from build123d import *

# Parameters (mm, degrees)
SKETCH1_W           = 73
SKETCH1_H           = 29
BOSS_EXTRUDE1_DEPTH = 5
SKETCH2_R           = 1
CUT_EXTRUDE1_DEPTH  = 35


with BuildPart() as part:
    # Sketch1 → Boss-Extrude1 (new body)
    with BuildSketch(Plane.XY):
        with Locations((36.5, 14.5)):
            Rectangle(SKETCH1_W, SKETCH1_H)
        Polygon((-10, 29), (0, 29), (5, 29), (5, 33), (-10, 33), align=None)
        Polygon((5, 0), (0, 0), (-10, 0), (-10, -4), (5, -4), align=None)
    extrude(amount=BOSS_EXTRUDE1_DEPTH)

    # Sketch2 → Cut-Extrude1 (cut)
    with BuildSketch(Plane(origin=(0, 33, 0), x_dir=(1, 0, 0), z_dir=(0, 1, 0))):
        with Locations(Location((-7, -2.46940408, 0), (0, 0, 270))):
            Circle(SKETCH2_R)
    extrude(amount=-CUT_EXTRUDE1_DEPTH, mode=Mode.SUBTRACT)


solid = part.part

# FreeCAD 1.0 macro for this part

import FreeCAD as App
import Part
import Sketcher

V = App.Vector

doc = App.newDocument("Part")
params = doc.addObject("Spreadsheet::Sheet", "Params")
for row, (alias, value) in enumerate([
    ("sketch1_width", "10 mm"),
    ("sketch1_width2", "15 mm"),
    ("sketch1_width3", "68 mm"),
    ("sketch1_height", "29 mm"),
    ("sketch1_height2", "4 mm"),
    ("pad1_length", "5 mm"),
    ("sketch2_diameter", "2 mm"),
    ("pocket1_length", "35 mm"),
], start=1):
    params.set(f"A{row}", alias)
    params.set(f"B{row}", "=" + value)
    params.setAlias(f"B{row}", alias)

body = doc.addObject("PartDesign::Body", "Body")

sketch1 = doc.addObject("Sketcher::SketchObject", "Sketch")
body.addObject(sketch1)
sketch1.AttachmentSupport = (doc.XY_Plane, [""])
sketch1.MapMode = "FlatFace"
sketch1.addGeometry(Part.LineSegment(V(0, 29, 0), V(0, 0, 0)), False)
sketch1.addGeometry(Part.LineSegment(V(0, 0, 0), V(-10, 0, 0)), False)
sketch1.addGeometry(Part.LineSegment(V(-10, 0, 0), V(-10, -4, 0)), False)
sketch1.addGeometry(Part.LineSegment(V(-10, -4, 0), V(5, -4, 0)), False)
sketch1.addGeometry(Part.LineSegment(V(5, -4, 0), V(5, 0, 0)), False)
sketch1.addGeometry(Part.LineSegment(V(5, 0, 0), V(73, 0, 0)), False)
sketch1.addGeometry(Part.LineSegment(V(73, 0, 0), V(73, 29, 0)), False)
sketch1.addGeometry(Part.LineSegment(V(73, 29, 0), V(5, 29, 0)), False)
sketch1.addGeometry(Part.LineSegment(V(5, 29, 0), V(5, 33, 0)), False)
sketch1.addGeometry(Part.LineSegment(V(5, 33, 0), V(-10, 33, 0)), False)
sketch1.addGeometry(Part.LineSegment(V(-10, 33, 0), V(-10, 29, 0)), False)
sketch1.addGeometry(Part.LineSegment(V(-10, 29, 0), V(0, 29, 0)), False)
sketch1.addConstraint(Sketcher.Constraint("Coincident", 0, 2, 1, 1))
sketch1.addConstraint(Sketcher.Constraint("Coincident", 1, 2, 2, 1))
sketch1.addConstraint(Sketcher.Constraint("Coincident", 2, 2, 3, 1))
sketch1.addConstraint(Sketcher.Constraint("Coincident", 3, 2, 4, 1))
sketch1.addConstraint(Sketcher.Constraint("Coincident", 4, 2, 5, 1))
sketch1.addConstraint(Sketcher.Constraint("Coincident", 5, 2, 6, 1))
sketch1.addConstraint(Sketcher.Constraint("Coincident", 6, 2, 7, 1))
sketch1.addConstraint(Sketcher.Constraint("Coincident", 7, 2, 8, 1))
sketch1.addConstraint(Sketcher.Constraint("Coincident", 8, 2, 9, 1))
sketch1.addConstraint(Sketcher.Constraint("Coincident", 9, 2, 10, 1))
sketch1.addConstraint(Sketcher.Constraint("Coincident", 10, 2, 11, 1))
sketch1.addConstraint(Sketcher.Constraint("Coincident", 11, 2, 0, 1))
sketch1.addConstraint(Sketcher.Constraint("Vertical", 0))
sketch1.addConstraint(Sketcher.Constraint("Horizontal", 1))
sketch1.addConstraint(Sketcher.Constraint("Vertical", 2))
sketch1.addConstraint(Sketcher.Constraint("Horizontal", 3))
sketch1.addConstraint(Sketcher.Constraint("Vertical", 4))
sketch1.addConstraint(Sketcher.Constraint("Horizontal", 5))
sketch1.addConstraint(Sketcher.Constraint("Vertical", 6))
sketch1.addConstraint(Sketcher.Constraint("Horizontal", 7))
sketch1.addConstraint(Sketcher.Constraint("Vertical", 8))
sketch1.addConstraint(Sketcher.Constraint("Horizontal", 9))
sketch1.addConstraint(Sketcher.Constraint("Vertical", 10))
sketch1.addConstraint(Sketcher.Constraint("Horizontal", 11))
sketch1.addConstraint(Sketcher.Constraint("Coincident", 0, 2, -1, 1))
sketch1.addConstraint(Sketcher.Constraint("PointOnObject", 4, 2, -1))
sketch1.addConstraint(Sketcher.Constraint("Horizontal", 7, 2, 10, 2))
sketch1.addConstraint(Sketcher.Constraint("Vertical", 4, 2, 7, 2))
sketch1.addConstraint(Sketcher.Constraint("Vertical", 2, 2, 9, 2))
sketch1.addConstraint(Sketcher.Constraint("Equal", 4, 8))
sketch1.addConstraint(Sketcher.Constraint("DistanceX", 1, 2, 1, 1, 10.0))
sketch1.addConstraint(Sketcher.Constraint("DistanceX", 3, 1, 3, 2, 15.0))
sketch1.addConstraint(Sketcher.Constraint("DistanceX", 5, 1, 5, 2, 68.0))
sketch1.addConstraint(Sketcher.Constraint("DistanceY", 0, 2, 0, 1, 29.0))
sketch1.addConstraint(Sketcher.Constraint("DistanceY", 2, 2, 2, 1, 4.0))
sketch1.setExpression("Constraints[30]", "Params.sketch1_width")
sketch1.setExpression("Constraints[31]", "Params.sketch1_width2")
sketch1.setExpression("Constraints[32]", "Params.sketch1_width3")
sketch1.setExpression("Constraints[33]", "Params.sketch1_height")
sketch1.setExpression("Constraints[34]", "Params.sketch1_height2")
pad1 = doc.addObject("PartDesign::Pad", "Pad")
body.addObject(pad1)
pad1.Profile = sketch1
pad1.setExpression("Length", "Params.pad1_length")

sketch2 = doc.addObject("Sketcher::SketchObject", "Sketch001")
body.addObject(sketch2)
sketch2.AttachmentSupport = (doc.XZ_Plane, [""])
sketch2.MapMode = "FlatFace"
sketch2.AttachmentOffset = App.Placement(V(0, 0, -33), App.Rotation())
sketch2.addGeometry(Part.Circle(V(-7, 2.5, 0), V(0, 0, 1), 1), False)
sketch2.addConstraint(Sketcher.Constraint("Diameter", 0, 2.0))
sketch2.addConstraint(Sketcher.Constraint("DistanceX", 0, 3, -1, 1, 7.0))
sketch2.addConstraint(Sketcher.Constraint("DistanceY", -1, 1, 0, 3, 2.469404))
sketch2.setExpression("Constraints[0]", "Params.sketch2_diameter")
pocket1 = doc.addObject("PartDesign::Pocket", "Pocket")
body.addObject(pocket1)
pocket1.Profile = sketch2
pocket1.setExpression("Length", "Params.pocket1_length")
pocket1.Reversed = True

doc.recompute()
